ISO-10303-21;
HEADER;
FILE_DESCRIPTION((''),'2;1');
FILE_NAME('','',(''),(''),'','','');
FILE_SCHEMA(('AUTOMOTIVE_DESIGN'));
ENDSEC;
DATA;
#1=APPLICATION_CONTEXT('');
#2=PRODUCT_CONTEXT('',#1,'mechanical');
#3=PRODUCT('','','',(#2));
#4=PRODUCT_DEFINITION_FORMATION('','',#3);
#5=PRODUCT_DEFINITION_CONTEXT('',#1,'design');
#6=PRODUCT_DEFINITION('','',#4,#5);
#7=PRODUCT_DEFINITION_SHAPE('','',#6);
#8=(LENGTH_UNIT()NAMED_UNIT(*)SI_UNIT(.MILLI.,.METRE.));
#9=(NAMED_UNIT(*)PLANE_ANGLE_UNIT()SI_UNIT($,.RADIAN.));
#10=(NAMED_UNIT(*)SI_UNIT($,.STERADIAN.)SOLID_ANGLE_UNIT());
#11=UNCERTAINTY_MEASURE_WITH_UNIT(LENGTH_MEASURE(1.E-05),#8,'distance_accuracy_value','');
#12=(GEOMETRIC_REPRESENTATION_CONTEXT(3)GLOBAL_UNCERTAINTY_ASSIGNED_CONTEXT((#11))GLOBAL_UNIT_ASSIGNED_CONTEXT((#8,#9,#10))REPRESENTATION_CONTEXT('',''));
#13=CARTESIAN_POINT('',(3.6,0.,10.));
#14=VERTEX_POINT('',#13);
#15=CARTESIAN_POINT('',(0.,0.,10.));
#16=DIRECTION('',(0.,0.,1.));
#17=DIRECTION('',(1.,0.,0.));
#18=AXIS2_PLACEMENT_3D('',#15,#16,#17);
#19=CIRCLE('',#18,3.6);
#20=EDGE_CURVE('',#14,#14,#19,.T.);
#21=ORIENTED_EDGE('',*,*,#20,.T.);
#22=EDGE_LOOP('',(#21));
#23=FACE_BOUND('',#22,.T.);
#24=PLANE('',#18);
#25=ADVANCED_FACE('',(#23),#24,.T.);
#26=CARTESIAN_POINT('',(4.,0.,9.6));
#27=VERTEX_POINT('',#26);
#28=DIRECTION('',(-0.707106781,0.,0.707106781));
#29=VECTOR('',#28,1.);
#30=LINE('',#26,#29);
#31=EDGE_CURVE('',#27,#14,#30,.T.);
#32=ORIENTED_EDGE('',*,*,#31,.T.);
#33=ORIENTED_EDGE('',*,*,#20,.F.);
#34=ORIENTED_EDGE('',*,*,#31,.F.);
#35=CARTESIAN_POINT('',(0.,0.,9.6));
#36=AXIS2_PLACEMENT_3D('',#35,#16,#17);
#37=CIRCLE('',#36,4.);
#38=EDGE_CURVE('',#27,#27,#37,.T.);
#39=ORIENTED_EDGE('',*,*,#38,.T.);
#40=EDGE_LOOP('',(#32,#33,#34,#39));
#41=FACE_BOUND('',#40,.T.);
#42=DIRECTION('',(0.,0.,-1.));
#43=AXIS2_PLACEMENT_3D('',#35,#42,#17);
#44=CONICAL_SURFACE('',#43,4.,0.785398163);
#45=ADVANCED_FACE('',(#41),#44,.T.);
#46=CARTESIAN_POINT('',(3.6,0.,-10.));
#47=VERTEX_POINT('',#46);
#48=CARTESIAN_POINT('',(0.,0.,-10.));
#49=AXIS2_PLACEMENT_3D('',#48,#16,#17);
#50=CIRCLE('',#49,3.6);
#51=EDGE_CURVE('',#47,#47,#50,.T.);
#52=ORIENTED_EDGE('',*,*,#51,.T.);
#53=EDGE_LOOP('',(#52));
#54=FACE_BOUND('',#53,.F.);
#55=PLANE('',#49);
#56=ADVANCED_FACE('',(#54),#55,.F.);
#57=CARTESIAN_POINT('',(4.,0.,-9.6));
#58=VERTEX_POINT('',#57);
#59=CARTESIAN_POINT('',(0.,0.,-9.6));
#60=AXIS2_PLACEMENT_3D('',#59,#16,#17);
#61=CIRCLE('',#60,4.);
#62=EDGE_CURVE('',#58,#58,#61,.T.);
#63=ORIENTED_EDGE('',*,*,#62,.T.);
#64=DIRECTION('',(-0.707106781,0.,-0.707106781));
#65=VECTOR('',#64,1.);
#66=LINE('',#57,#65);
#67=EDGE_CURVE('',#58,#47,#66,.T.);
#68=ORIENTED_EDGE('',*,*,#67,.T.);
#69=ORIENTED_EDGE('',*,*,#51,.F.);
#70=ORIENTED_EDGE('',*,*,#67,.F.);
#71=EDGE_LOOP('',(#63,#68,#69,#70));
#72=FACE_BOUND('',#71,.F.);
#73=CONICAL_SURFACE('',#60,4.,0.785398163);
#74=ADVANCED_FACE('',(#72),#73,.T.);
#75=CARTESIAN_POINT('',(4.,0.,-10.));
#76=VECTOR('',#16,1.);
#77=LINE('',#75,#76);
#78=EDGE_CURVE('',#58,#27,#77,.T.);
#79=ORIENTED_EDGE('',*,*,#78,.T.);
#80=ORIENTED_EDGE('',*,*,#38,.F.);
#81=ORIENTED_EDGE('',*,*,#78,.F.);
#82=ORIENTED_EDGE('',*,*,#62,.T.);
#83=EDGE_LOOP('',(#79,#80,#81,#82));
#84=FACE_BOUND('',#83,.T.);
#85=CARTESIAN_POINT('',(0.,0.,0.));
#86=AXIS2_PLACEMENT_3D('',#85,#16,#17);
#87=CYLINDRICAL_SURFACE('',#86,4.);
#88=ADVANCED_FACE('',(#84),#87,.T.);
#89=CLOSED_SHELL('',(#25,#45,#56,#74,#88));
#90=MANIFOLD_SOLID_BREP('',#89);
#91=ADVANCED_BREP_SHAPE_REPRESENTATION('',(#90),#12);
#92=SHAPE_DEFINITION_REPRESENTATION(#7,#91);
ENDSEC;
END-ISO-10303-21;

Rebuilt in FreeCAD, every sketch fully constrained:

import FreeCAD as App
import Part
import Sketcher
Q = App.Units.Quantity


def edges_at(feature, points):
    """Names of the edges that pass closest to the given points."""
    edges = feature.Shape.Edges
    near = lambda p: min(range(len(edges)), key=lambda i: edges[i].distToShape(Part.Vertex(*p))[0])
    return sorted({f"Edge{near(p) + 1}" for p in points})

doc = App.newDocument("Part")
body = doc.addObject("PartDesign::Body", "Body")

# Sketch on XY plane
sketch1 = body.newObject("Sketcher::SketchObject", "Sketch")
sketch1.AttachmentSupport = (doc.getObject("XY_Plane"), [""])
sketch1.MapMode = "FlatFace"
sketch1.addGeometry(Part.Circle(App.Vector(0, 0, 0), App.Vector(0, 0, 1), 4), False)
sketch1.addConstraint([
    Sketcher.Constraint("Coincident", 0, 3, -1, 1),
    Sketcher.Constraint("Diameter", 0, Q("8 mm")),
])
pad1 = body.newObject("PartDesign::Pad", "Pad")
pad1.Profile = sketch1
pad1.Length = 20
pad1.Midplane = True
doc.recompute()

chamfer = body.newObject("PartDesign::Chamfer", "Chamfer")
chamfer.Base = (pad1, edges_at(pad1, [(-4, 0, -10), (-4, 0, 10)]))
chamfer.Size = 0.4

doc.recompute()
